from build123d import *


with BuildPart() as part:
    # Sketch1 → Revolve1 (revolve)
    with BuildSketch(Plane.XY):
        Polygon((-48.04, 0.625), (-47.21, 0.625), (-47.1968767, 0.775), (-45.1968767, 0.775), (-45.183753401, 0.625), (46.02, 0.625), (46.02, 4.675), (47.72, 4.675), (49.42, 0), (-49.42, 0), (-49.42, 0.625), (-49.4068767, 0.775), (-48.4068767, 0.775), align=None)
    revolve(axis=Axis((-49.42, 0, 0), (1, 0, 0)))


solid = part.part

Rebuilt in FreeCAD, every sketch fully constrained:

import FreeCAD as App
import Part
import Sketcher
Q = App.Units.Quantity


def add_polygon(sketch, points):
    """Adds a closed chain of lines whose ends are joined by coincident constraints."""
    first, n = sketch.GeometryCount, len(points)
    for a, b in zip(points, points[1:] + points[:1]):
        sketch.addGeometry(Part.LineSegment(App.Vector(*a, 0), App.Vector(*b, 0)), False)
    for i in range(n):
        sketch.addConstraint(Sketcher.Constraint("Coincident", first + i, 2, first + (i + 1) % n, 1))

doc = App.newDocument("Part")
body = doc.addObject("PartDesign::Body", "Body")

# Sketch on XY plane
sketch1 = body.newObject("Sketcher::SketchObject", "Sketch")
sketch1.AttachmentSupport = (doc.getObject("XY_Plane"), [""])
sketch1.MapMode = "FlatFace"
add_polygon(sketch1, [(-47.21, 0.62), (-48.04, 0.62), (-48.41, 0.78), (-49.41, 0.78), (-49.42, 0.62), (-49.42, 0), (49.42, 0), (47.72, 4.67), (46.02, 4.67), (46.02, 0.62), (-45.18, 0.62), (-45.2, 0.78), (-47.2, 0.78)])  # lines 0-12
sketch1.addConstraint([
    Sketcher.Constraint("Horizontal", 0),
    Sketcher.Constraint("Horizontal", 2),
    Sketcher.Constraint("Vertical", 4),
    Sketcher.Constraint("Horizontal", 5),
    Sketcher.Constraint("Horizontal", 7),
    Sketcher.Constraint("Vertical", 8),
    Sketcher.Constraint("Horizontal", 9),
    Sketcher.Constraint("Horizontal", 11),
    Sketcher.Constraint("Symmetric", 4, 2, 5, 2, -1, 1),
    Sketcher.Constraint("Parallel", 3, 12),
    Sketcher.Constraint("Horizontal", 0, 2, 3, 2),
    Sketcher.Constraint("Horizontal", 3, 2, 8, 2),
    Sketcher.Constraint("Horizontal", 2, 2, 10, 2),
    Sketcher.Constraint("Equal", 3, 10),
    Sketcher.Constraint("DistanceX", 2, 2, 2, 1, Q("1 mm")),
    Sketcher.Constraint("DistanceX", 11, 2, 11, 1, Q("2 mm")),
    Sketcher.Constraint("Angle", 3, Q("-95 deg")),
    Sketcher.Constraint("DistanceX", 7, 2, 7, 1, Q("1.7 mm")),
    Sketcher.Constraint("DistanceX", 0, 2, 0, 1, Q("0.83 mm")),
    Sketcher.Constraint("DistanceX", 5, 1, 5, 2, Q("98.84 mm")),
    Sketcher.Constraint("DistanceY", 8, 2, 8, 1, Q("4.05 mm")),
    Sketcher.Constraint("DistanceX", 6, 2, 5, 2, Q("1.7 mm")),
    Sketcher.Constraint("DistanceY", 1, 2, 6, 2, Q("3.9 mm")),
    Sketcher.Constraint("DistanceY", 4, 2, 4, 1, Q("0.625 mm")),
    Sketcher.Constraint("DistanceX", 0, 2, -1, 1, Q("48.04 mm")),
])
revolution = body.newObject("PartDesign::Revolution", "Revolution")
revolution.Profile = sketch1
revolution.ReferenceAxis = (sketch1, ["H_Axis"])
revolution.Angle = 360

doc.recompute()
